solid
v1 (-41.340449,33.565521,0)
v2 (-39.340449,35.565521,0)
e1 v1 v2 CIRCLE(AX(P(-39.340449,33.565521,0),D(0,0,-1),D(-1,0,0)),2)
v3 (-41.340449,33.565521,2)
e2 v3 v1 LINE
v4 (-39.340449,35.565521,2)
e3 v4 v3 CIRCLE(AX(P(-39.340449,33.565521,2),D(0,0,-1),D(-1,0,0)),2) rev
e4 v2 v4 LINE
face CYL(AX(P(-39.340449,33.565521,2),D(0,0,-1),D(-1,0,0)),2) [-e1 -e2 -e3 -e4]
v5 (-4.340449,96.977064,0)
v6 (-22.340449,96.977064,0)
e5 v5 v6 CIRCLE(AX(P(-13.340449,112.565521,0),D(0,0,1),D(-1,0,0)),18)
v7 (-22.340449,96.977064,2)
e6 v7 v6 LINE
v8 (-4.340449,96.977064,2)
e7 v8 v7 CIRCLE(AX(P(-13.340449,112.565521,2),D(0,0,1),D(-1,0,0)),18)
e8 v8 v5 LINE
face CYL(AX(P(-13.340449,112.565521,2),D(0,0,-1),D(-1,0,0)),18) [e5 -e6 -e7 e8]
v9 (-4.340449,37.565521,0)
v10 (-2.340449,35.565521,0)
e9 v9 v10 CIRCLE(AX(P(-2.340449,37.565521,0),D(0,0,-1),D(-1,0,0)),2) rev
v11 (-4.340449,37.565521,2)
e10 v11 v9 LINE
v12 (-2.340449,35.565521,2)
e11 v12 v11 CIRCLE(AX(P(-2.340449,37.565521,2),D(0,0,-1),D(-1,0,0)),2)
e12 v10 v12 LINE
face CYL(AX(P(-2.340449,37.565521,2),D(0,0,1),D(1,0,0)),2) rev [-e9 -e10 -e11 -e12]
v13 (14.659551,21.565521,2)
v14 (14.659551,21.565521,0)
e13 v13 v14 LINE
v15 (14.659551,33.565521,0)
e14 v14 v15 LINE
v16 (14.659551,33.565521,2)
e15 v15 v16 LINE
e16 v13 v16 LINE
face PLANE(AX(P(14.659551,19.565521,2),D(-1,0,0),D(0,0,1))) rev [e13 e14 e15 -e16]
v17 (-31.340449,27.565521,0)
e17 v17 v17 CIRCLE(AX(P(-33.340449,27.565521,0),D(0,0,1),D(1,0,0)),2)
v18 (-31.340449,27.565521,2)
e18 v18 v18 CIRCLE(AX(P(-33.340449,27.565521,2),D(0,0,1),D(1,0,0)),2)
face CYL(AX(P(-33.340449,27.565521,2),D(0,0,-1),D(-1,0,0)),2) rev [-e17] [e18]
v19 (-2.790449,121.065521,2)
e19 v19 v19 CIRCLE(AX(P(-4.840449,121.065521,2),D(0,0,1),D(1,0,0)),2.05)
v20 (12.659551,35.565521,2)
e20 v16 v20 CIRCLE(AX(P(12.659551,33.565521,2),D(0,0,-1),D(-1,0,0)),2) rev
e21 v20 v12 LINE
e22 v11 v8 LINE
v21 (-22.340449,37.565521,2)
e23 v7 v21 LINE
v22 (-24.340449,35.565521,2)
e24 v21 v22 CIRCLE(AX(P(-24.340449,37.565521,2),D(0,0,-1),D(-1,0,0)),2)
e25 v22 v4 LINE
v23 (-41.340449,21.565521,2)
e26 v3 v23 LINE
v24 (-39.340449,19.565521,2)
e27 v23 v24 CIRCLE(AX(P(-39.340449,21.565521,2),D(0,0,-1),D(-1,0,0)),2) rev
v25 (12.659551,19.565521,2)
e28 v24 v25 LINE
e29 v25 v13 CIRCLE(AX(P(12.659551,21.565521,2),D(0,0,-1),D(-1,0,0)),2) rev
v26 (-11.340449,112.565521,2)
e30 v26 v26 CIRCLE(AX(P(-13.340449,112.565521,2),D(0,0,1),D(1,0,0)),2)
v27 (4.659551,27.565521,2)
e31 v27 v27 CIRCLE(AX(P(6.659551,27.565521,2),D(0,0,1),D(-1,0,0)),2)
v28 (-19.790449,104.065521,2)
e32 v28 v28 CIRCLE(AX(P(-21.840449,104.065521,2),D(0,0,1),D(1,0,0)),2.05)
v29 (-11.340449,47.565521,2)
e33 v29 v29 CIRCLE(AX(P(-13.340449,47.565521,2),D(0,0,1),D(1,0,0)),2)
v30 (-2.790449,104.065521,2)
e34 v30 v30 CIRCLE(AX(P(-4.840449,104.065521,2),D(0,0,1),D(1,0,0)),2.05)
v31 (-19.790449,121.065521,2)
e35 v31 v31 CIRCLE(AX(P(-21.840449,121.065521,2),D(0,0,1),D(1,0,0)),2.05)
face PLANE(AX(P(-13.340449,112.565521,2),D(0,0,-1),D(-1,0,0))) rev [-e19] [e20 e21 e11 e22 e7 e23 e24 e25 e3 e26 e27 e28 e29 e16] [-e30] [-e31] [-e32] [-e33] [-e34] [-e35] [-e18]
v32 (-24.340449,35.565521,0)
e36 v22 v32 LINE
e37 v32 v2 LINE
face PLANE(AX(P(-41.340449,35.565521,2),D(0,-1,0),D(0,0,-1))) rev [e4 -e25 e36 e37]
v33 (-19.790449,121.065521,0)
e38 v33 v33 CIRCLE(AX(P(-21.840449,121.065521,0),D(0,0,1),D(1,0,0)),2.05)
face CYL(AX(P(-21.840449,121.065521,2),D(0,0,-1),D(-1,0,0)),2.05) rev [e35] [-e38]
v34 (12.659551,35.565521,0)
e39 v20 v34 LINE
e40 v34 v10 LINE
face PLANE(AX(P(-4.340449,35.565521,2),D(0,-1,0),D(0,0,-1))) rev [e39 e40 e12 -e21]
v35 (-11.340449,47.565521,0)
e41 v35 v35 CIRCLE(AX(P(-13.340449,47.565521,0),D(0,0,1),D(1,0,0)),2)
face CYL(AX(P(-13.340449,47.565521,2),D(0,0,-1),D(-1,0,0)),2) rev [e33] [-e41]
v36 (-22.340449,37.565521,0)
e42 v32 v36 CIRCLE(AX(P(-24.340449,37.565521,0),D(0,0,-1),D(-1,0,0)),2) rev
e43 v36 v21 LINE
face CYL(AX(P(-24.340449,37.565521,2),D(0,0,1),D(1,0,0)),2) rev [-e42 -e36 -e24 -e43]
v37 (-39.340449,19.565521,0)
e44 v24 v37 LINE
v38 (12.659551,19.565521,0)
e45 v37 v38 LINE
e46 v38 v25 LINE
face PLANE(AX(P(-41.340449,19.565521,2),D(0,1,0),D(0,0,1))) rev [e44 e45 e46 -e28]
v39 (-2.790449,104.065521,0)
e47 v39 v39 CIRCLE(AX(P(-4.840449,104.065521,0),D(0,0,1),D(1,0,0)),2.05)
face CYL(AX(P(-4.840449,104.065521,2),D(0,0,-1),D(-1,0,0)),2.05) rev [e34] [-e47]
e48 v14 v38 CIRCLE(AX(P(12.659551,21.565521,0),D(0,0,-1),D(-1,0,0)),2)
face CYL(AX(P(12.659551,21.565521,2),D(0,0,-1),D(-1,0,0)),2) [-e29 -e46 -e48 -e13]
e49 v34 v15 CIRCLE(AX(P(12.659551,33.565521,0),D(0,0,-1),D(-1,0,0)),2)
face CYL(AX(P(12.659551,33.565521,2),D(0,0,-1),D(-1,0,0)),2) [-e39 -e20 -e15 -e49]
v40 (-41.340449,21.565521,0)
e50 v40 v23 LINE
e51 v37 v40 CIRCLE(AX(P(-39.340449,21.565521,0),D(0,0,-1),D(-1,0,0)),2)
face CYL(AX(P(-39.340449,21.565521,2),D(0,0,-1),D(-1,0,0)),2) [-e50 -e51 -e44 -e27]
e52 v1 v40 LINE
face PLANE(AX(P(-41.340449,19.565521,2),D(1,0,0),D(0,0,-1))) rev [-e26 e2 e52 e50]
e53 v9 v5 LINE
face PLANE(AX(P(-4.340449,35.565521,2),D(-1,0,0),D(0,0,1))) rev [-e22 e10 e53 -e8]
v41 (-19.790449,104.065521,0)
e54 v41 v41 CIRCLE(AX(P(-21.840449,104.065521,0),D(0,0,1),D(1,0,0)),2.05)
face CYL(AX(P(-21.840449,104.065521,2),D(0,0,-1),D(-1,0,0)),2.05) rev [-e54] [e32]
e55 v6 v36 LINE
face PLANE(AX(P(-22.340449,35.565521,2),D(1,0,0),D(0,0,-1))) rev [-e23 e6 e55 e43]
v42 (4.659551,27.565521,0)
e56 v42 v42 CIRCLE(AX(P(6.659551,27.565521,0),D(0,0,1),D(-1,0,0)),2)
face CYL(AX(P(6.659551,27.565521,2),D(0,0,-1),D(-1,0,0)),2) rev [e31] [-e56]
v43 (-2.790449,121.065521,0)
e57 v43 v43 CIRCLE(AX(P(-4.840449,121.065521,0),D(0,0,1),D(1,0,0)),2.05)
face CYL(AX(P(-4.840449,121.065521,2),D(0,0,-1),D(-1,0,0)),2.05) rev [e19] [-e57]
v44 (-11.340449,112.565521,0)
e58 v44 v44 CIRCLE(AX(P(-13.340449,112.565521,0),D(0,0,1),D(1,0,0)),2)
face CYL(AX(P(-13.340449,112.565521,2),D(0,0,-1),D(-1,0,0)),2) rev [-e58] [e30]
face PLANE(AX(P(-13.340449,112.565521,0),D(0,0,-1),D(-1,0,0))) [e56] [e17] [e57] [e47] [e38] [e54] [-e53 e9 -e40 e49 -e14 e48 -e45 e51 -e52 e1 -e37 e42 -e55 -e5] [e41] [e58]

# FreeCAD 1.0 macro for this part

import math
import FreeCAD as App
import Part
import Sketcher

V = App.Vector


def edges_at(feature, points):
    """Names of the edges that pass closest to the given points."""
    edges = feature.Shape.Edges
    near = lambda p: min(range(len(edges)), key=lambda i: edges[i].distToShape(Part.Vertex(*p))[0])
    return sorted({f"Edge{near(p) + 1}" for p in points})

doc = App.newDocument("Part")
body = doc.addObject("PartDesign::Body", "Body")

# Sketch on XY plane
sketch1 = body.newObject("Sketcher::SketchObject", "Sketch")
sketch1.AttachmentSupport = (doc.getObject("XY_Plane"), [""])
sketch1.MapMode = "FlatFace"
sketch1.addGeometry(Part.LineSegment(V(14.7, 19.6, 0), V(14.7, 35.6, 0)), False)
sketch1.addGeometry(Part.LineSegment(V(14.7, 35.6, 0), V(-4.3, 35.6, 0)), False)
sketch1.addGeometry(Part.LineSegment(V(-4.3, 35.6, 0), V(-4.3, 97, 0)), False)
sketch1.addGeometry(Part.ArcOfCircle(Part.Circle(V(-13.3, 112.6, 0), V(0, 0, 1), 18), math.radians(-60), math.radians(240)), False)
sketch1.addGeometry(Part.LineSegment(V(-22.3, 97, 0), V(-22.3, 35.6, 0)), False)
sketch1.addGeometry(Part.LineSegment(V(-22.3, 35.6, 0), V(-41.3, 35.6, 0)), False)
sketch1.addGeometry(Part.LineSegment(V(-41.3, 35.6, 0), V(-41.3, 19.6, 0)), False)
sketch1.addGeometry(Part.LineSegment(V(-41.3, 19.6, 0), V(14.7, 19.6, 0)), False)
sketch1.addGeometry(Part.Circle(V(-33.3, 27.6, 0), V(0, 0, 1), 2), False)
sketch1.addGeometry(Part.Circle(V(-13.3, 47.6, 0), V(0, 0, 1), 2), False)
sketch1.addGeometry(Part.Circle(V(6.7, 27.6, 0), V(0, 0, 1), 2), False)
sketch1.addGeometry(Part.Circle(V(-21.8, 104.1, 0), V(0, 0, 1), 2), False)
sketch1.addGeometry(Part.Circle(V(-21.8, 121.1, 0), V(0, 0, 1), 2), False)
sketch1.addGeometry(Part.Circle(V(-4.8, 104.1, 0), V(0, 0, 1), 2), False)
sketch1.addGeometry(Part.Circle(V(-13.3, 112.6, 0), V(0, 0, 1), 2), False)
sketch1.addGeometry(Part.Circle(V(-4.8, 121.1, 0), V(0, 0, 1), 2), False)
sketch1.addConstraint(Sketcher.Constraint("Coincident", 0, 2, 1, 1))
sketch1.addConstraint(Sketcher.Constraint("Coincident", 1, 2, 2, 1))
sketch1.addConstraint(Sketcher.Constraint("Coincident", 2, 2, 3, 1))
sketch1.addConstraint(Sketcher.Constraint("Coincident", 3, 2, 4, 1))
sketch1.addConstraint(Sketcher.Constraint("Coincident", 4, 2, 5, 1))
sketch1.addConstraint(Sketcher.Constraint("Coincident", 5, 2, 6, 1))
sketch1.addConstraint(Sketcher.Constraint("Coincident", 6, 2, 7, 1))
sketch1.addConstraint(Sketcher.Constraint("Coincident", 7, 2, 0, 1))
sketch1.addConstraint(Sketcher.Constraint("Vertical", 0))
sketch1.addConstraint(Sketcher.Constraint("Horizontal", 1))
sketch1.addConstraint(Sketcher.Constraint("Vertical", 2))
sketch1.addConstraint(Sketcher.Constraint("Vertical", 4))
sketch1.addConstraint(Sketcher.Constraint("Horizontal", 5))
sketch1.addConstraint(Sketcher.Constraint("Vertical", 6))
sketch1.addConstraint(Sketcher.Constraint("Horizontal", 7))
sketch1.addConstraint(Sketcher.Constraint("Coincident", 14, 3, 3, 3))
sketch1.addConstraint(Sketcher.Constraint("Equal", 8, 9))
sketch1.addConstraint(Sketcher.Constraint("Equal", 9, 10))
sketch1.addConstraint(Sketcher.Constraint("Equal", 11, 12))
sketch1.addConstraint(Sketcher.Constraint("Equal", 12, 13))
sketch1.addConstraint(Sketcher.Constraint("Equal", 10, 14))
sketch1.addConstraint(Sketcher.Constraint("Equal", 13, 15))
sketch1.addConstraint(Sketcher.Constraint("Horizontal", 8, 3, 10, 3))
sketch1.addConstraint(Sketcher.Constraint("Horizontal", 11, 3, 13, 3))
sketch1.addConstraint(Sketcher.Constraint("Horizontal", 12, 3, 15, 3))
sketch1.addConstraint(Sketcher.Constraint("Horizontal", 2, 2, 3, 2))
sketch1.addConstraint(Sketcher.Constraint("Horizontal", 1, 2, 4, 2))
sketch1.addConstraint(Sketcher.Constraint("Vertical", 3, 3, 9, 3))
sketch1.addConstraint(Sketcher.Constraint("Vertical", 11, 3, 12, 3))
sketch1.addConstraint(Sketcher.Constraint("Vertical", 13, 3, 15, 3))
sketch1.addConstraint(Sketcher.Constraint("Equal", 1, 5))
sketch1.addConstraint(Sketcher.Constraint("Diameter", 8, 4.0))
sketch1.addConstraint(Sketcher.Constraint("Radius", 3, 18.0))
sketch1.addConstraint(Sketcher.Constraint("Diameter", 11, 4.1))
sketch1.addConstraint(Sketcher.Constraint("DistanceX", 1, 2, 1, 1, 19.0))
sketch1.addConstraint(Sketcher.Constraint("DistanceX", 7, 1, 7, 2, 56.0))
sketch1.addConstraint(Sketcher.Constraint("DistanceY", 0, 1, 0, 2, 16.0))
sketch1.addConstraint(Sketcher.Constraint("DistanceX", 8, 3, 3, 3, 20.0))
sketch1.addConstraint(Sketcher.Constraint("DistanceY", 8, 3, 3, 3, 85.0))
sketch1.addConstraint(Sketcher.Constraint("DistanceY", 8, 3, 9, 3, 20.0))
sketch1.addConstraint(Sketcher.Constraint("DistanceX", 9, 3, 10, 3, 20.0))
sketch1.addConstraint(Sketcher.Constraint("DistanceY", 11, 3, 12, 3, 17.0))
sketch1.addConstraint(Sketcher.Constraint("DistanceX", 11, 3, 13, 3, 17.0))
sketch1.addConstraint(Sketcher.Constraint("DistanceY", 10, 3, 0, 2, 8.0))
sketch1.addConstraint(Sketcher.Constraint("DistanceX", 11, 3, 3, 3, 8.5))
sketch1.addConstraint(Sketcher.Constraint("DistanceY", 11, 3, 3, 3, 8.5))
sketch1.addConstraint(Sketcher.Constraint("DistanceX", 3, 3, -1, 1, 13.340449))
sketch1.addConstraint(Sketcher.Constraint("DistanceY", -1, 1, 3, 3, 112.565521))
pad1 = body.newObject("PartDesign::Pad", "Pad")
pad1.Profile = sketch1
pad1.Length = 2
doc.recompute()

fillet = body.newObject("PartDesign::Fillet", "Fillet")
fillet.Base = (pad1, edges_at(pad1, [
    (-41.34, 19.566, 1),
    (-41.34, 35.566, 1),
    (-22.34, 35.566, 1),
    (-4.34, 35.566, 1),
    (14.66, 35.566, 1),
    (14.66, 19.566, 1),
]))
fillet.Radius = 2

doc.recompute()
